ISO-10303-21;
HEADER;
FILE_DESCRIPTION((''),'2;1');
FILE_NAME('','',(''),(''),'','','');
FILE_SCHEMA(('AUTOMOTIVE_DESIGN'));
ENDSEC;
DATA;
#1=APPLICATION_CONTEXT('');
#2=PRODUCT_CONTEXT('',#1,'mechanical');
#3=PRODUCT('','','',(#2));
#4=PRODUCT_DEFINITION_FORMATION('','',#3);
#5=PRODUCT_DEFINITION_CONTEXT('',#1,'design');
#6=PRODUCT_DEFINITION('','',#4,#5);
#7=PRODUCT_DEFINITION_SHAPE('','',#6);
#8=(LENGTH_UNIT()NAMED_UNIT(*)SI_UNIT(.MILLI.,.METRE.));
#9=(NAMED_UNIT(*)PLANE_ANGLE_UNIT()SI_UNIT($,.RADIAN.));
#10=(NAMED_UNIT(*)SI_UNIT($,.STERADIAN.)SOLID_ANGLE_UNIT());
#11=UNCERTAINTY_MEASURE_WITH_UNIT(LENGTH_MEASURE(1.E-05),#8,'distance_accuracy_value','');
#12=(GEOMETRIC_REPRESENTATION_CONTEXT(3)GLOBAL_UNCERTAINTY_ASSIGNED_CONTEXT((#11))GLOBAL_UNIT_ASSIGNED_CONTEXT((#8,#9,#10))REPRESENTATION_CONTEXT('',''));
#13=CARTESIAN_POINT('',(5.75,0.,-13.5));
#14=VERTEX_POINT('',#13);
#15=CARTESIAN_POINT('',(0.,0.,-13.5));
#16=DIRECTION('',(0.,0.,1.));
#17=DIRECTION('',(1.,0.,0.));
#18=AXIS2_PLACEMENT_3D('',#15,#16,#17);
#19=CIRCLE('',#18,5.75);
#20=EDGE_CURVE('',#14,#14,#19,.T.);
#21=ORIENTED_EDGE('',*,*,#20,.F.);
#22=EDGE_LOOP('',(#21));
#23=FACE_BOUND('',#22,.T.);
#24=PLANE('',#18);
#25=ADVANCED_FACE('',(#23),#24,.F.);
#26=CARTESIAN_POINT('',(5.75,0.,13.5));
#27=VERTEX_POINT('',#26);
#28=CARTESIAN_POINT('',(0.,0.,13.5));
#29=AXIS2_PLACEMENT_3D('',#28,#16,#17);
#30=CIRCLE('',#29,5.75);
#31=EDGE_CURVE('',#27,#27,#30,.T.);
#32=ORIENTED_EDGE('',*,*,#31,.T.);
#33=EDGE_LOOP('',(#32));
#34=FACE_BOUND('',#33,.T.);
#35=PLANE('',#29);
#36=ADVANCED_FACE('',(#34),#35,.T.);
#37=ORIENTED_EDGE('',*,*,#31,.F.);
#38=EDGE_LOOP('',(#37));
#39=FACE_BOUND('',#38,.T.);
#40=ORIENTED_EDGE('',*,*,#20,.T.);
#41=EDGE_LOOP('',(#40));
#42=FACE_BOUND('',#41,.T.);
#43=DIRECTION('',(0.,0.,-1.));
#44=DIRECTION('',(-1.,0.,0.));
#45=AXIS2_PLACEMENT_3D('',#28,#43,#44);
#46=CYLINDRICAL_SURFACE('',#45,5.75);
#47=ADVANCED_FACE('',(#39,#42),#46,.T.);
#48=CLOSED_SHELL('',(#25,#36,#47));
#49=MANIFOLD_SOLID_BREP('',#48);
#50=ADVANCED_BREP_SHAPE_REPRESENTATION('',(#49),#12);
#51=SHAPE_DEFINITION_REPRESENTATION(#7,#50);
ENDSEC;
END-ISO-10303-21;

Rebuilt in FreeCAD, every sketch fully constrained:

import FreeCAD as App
import Part
import Sketcher
from FreeCAD import Vector

doc = App.newDocument("Part")
params = doc.addObject("Spreadsheet::Sheet", "Params")
for row, (alias, value) in enumerate([
    ("sketch1_diameter", "11.5 mm"),
    ("pad1_length", "27 mm"),
], start=1):
    params.set(f"A{row}", alias)
    params.set(f"B{row}", "=" + value)
    params.setAlias(f"B{row}", alias)

body = doc.addObject("PartDesign::Body", "Body")

# Sketch on XY plane
sketch1 = doc.addObject("Sketcher::SketchObject", "Sketch")
body.addObject(sketch1)
sketch1.AttachmentSupport = (doc.XY_Plane, [""])
sketch1.MapMode = "FlatFace"
sketch1.addGeometry(Part.Circle(Vector(0, 0, 0), Vector(0, 0, 1), 6), False)
sketch1.addConstraint([
    Sketcher.Constraint("Coincident", 0, 3, -1, 1),
    Sketcher.Constraint("Diameter", 0, 11.5),
])
sketch1.setExpression("Constraints[1]", "Params.sketch1_diameter")
pad1 = doc.addObject("PartDesign::Pad", "Pad")
body.addObject(pad1)
pad1.Profile = sketch1
pad1.setExpression("Length", "Params.pad1_length")
pad1.Midplane = True

doc.recompute()
